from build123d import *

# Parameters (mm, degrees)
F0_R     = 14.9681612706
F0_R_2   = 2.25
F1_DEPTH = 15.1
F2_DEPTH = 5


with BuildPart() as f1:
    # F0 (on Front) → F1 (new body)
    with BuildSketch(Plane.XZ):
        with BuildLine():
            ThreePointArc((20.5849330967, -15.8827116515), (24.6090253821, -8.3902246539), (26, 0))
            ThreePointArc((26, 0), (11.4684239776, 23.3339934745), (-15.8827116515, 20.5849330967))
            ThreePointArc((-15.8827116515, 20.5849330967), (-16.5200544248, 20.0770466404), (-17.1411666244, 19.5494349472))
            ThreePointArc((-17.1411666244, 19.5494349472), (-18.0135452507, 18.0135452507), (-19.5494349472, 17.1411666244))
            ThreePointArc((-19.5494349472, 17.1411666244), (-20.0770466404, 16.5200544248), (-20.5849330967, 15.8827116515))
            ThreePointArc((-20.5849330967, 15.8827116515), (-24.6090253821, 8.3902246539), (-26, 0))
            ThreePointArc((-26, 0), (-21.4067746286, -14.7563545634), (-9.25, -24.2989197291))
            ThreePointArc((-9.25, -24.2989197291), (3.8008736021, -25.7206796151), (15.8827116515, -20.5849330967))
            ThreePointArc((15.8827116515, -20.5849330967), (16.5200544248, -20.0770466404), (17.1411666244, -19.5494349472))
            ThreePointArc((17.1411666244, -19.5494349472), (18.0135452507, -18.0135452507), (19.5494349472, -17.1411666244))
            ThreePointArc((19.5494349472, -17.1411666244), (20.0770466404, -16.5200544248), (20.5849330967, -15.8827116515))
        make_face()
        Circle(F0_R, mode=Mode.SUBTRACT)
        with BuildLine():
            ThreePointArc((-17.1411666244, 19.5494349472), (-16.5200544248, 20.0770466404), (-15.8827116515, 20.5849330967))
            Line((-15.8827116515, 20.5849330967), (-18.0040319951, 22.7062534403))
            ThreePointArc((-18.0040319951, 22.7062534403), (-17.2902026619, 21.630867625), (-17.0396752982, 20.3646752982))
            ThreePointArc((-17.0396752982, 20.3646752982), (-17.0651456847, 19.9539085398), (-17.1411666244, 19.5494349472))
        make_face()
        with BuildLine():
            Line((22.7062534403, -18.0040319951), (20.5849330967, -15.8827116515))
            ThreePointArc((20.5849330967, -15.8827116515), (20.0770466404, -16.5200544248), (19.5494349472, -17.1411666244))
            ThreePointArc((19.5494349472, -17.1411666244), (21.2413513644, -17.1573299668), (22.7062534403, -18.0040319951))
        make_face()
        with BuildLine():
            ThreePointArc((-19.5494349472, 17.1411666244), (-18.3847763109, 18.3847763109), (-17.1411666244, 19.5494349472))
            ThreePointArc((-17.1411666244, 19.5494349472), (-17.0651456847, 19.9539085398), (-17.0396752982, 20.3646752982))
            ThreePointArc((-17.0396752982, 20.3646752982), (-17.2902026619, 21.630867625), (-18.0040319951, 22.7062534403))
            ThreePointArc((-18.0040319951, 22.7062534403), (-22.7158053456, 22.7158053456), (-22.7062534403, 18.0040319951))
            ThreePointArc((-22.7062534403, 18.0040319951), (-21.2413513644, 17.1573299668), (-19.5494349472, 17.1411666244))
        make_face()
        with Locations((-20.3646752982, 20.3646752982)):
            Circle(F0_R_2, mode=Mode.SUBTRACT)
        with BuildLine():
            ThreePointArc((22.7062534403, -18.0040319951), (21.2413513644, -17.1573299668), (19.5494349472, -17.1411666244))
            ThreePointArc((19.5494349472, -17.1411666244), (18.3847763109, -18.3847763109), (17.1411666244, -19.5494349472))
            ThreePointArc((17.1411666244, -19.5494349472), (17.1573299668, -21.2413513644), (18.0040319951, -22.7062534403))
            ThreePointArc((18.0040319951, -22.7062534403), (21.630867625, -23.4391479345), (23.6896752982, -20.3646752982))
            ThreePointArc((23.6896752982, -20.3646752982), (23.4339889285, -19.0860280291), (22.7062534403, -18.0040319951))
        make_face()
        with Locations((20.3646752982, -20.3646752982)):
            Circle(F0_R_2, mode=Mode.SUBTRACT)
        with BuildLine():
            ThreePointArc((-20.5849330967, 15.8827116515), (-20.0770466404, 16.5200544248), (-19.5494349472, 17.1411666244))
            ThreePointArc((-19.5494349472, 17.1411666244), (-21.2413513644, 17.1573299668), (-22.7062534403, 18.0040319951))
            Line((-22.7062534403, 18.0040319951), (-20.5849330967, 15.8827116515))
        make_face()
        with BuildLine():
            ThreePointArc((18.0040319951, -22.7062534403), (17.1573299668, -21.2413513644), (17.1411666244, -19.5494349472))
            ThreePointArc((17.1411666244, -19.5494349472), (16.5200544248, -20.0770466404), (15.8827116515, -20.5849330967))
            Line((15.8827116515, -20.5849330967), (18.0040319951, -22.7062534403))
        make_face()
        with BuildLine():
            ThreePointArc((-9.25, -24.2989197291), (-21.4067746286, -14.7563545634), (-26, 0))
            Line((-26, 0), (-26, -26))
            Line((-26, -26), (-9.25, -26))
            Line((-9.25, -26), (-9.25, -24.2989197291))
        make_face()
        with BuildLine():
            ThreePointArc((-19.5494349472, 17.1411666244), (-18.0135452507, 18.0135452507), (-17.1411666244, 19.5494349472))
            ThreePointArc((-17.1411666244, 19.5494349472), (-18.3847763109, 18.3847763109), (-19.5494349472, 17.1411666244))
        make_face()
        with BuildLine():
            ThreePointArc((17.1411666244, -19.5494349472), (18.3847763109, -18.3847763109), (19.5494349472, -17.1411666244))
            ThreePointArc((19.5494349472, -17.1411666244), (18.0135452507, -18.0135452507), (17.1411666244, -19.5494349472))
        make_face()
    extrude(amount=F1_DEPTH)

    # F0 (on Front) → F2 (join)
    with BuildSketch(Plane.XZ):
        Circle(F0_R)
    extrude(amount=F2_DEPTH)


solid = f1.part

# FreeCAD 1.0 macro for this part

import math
import FreeCAD as App
import Part
import Sketcher
Q = App.Units.Quantity

doc = App.newDocument("Part")
body = doc.addObject("PartDesign::Body", "Body")

sketch1 = body.newObject("Sketcher::SketchObject", "Sketch")
sketch1.AttachmentSupport = (doc.getObject("XZ_Plane"), [""])
sketch1.MapMode = "FlatFace"
sketch1.addGeometry([
    Part.ArcOfCircle(Part.Circle(App.Vector(0, 0, 0), App.Vector(0, 0, 1), 26), math.radians(-110.840596), math.radians(-52.347309)),
    Part.LineSegment(App.Vector(15.882712, -20.584933, 0), App.Vector(18.004032, -22.706253, 0)),
    Part.ArcOfCircle(Part.Circle(App.Vector(20.364675, -20.364675, 0), App.Vector(0, 0, 1), 3.325), math.radians(-135.232305), math.radians(0)),
    Part.ArcOfCircle(Part.Circle(App.Vector(20.364675, -20.364675, 0), App.Vector(0, 0, 1), 3.325), math.radians(0), math.radians(45.232305)),
    Part.LineSegment(App.Vector(22.706253, -18.004032, 0), App.Vector(20.584933, -15.882712, 0)),
    Part.ArcOfCircle(Part.Circle(App.Vector(0, 0, 0), App.Vector(0, 0, 1), 26), math.radians(-37.652691), math.radians(0)),
    Part.ArcOfCircle(Part.Circle(App.Vector(0, 0, 0), App.Vector(0, 0, 1), 26), math.radians(0), math.radians(127.652691)),
    Part.LineSegment(App.Vector(-15.882712, 20.584933, 0), App.Vector(-18.004032, 22.706253, 0)),
    Part.ArcOfCircle(Part.Circle(App.Vector(-20.364675, 20.364675, 0), App.Vector(0, 0, 1), 3.325), math.radians(44.767695), math.radians(225.232305)),
    Part.LineSegment(App.Vector(-22.706253, 18.004032, 0), App.Vector(-20.584933, 15.882712, 0)),
    Part.ArcOfCircle(Part.Circle(App.Vector(0, 0, 0), App.Vector(0, 0, 1), 26), math.radians(142.347309), math.radians(180)),
    Part.LineSegment(App.Vector(-26, 0, 0), App.Vector(-26, -26, 0)),
    Part.LineSegment(App.Vector(-26, -26, 0), App.Vector(-9.25, -26, 0)),
    Part.LineSegment(App.Vector(-9.25, -26, 0), App.Vector(-9.25, -24.29892, 0)),
    Part.Circle(App.Vector(20.364675, -20.364675, 0), App.Vector(0, 0, 1), 2.25),
    Part.Circle(App.Vector(-20.364675, 20.364675, 0), App.Vector(0, 0, 1), 2.25),
    Part.Circle(App.Vector(0, 0, 0), App.Vector(0, 0, 1), 14.968161),
], False)
sketch1.addConstraint([
    Sketcher.Constraint("Coincident", 0, 2, 1, 1),
    Sketcher.Constraint("Coincident", 1, 2, 2, 1),
    Sketcher.Constraint("Tangent", 2, 2, 3, 1),
    Sketcher.Constraint("Coincident", 3, 2, 4, 1),
    Sketcher.Constraint("Coincident", 4, 2, 5, 1),
    Sketcher.Constraint("Tangent", 5, 2, 6, 1),
    Sketcher.Constraint("Coincident", 6, 2, 7, 1),
    Sketcher.Constraint("Coincident", 7, 2, 8, 1),
    Sketcher.Constraint("Coincident", 8, 2, 9, 1),
    Sketcher.Constraint("Coincident", 9, 2, 10, 1),
    Sketcher.Constraint("Tangent", 10, 2, 11, 1),
    Sketcher.Constraint("Coincident", 11, 2, 12, 1),
    Sketcher.Constraint("Coincident", 12, 2, 13, 1),
    Sketcher.Constraint("Coincident", 13, 2, 0, 1),
    Sketcher.Constraint("Vertical", 11),
    Sketcher.Constraint("Horizontal", 12),
    Sketcher.Constraint("Vertical", 13),
    Sketcher.Constraint("Coincident", 0, 3, -1, 1),
    Sketcher.Constraint("Coincident", 5, 3, -1, 1),
    Sketcher.Constraint("Coincident", 10, 3, -1, 1),
    Sketcher.Constraint("Coincident", 16, 3, -1, 1),
    Sketcher.Constraint("Coincident", 14, 3, 2, 3),
    Sketcher.Constraint("Coincident", 15, 3, 8, 3),
    Sketcher.Constraint("Equal", 2, 3),
    Sketcher.Constraint("Equal", 0, 5),
    Sketcher.Constraint("Equal", 5, 6),
    Sketcher.Constraint("Equal", 3, 8),
    Sketcher.Constraint("Equal", 6, 10),
    Sketcher.Constraint("Equal", 14, 15),
    Sketcher.Constraint("Symmetric", 2, 3, 8, 3, -1, 1),
    Sketcher.Constraint("PointOnObject", 5, 2, -1),
    Sketcher.Constraint("Parallel", 1, 4),
    Sketcher.Constraint("Parallel", 4, 7),
    Sketcher.Constraint("Parallel", 7, 9),
    Sketcher.Constraint("Horizontal", 14, 3, 2, 2),
    Sketcher.Constraint("Equal", 1, 4),
    Sketcher.Constraint("Equal", 4, 7),
    Sketcher.Constraint("Equal", 7, 9),
    Sketcher.Constraint("Radius", 0, 26.0),
    Sketcher.Constraint("Diameter", 14, 4.5),
    Sketcher.Constraint("DistanceY", 11, 2, 11, 1, 26.0),
    Sketcher.Constraint("Angle", 1, Q("-45 deg")),
    Sketcher.Constraint("Distance", 1, 3.0),
    Sketcher.Constraint("Radius", 2, 3.325),
    Sketcher.Constraint("DistanceX", 12, 1, 12, 2, 16.75),
    Sketcher.Constraint("Diameter", 16, 29.936323),
    Sketcher.Constraint("DistanceY", 8, 2, 6, 2, 2.580901),
    Sketcher.Constraint("DistanceX", 9, 2, 7, 2, 2.580901),
])
pad1 = body.newObject("PartDesign::Pad", "Pad")
pad1.Profile = sketch1
pad1.Length = 15.1

sketch2 = body.newObject("Sketcher::SketchObject", "Sketch001")
sketch2.AttachmentSupport = (doc.getObject("XZ_Plane"), [""])
sketch2.MapMode = "FlatFace"
sketch2.addGeometry(Part.Circle(App.Vector(0, 0, 0), App.Vector(0, 0, 1), 14.968161), False)
sketch2.addConstraint([
    Sketcher.Constraint("Coincident", 0, 3, -1, 1),
    Sketcher.Constraint("Diameter", 0, 29.936323),
])
pad2 = body.newObject("PartDesign::Pad", "Pad001")
pad2.Profile = sketch2
pad2.Length = 5

doc.recompute()
